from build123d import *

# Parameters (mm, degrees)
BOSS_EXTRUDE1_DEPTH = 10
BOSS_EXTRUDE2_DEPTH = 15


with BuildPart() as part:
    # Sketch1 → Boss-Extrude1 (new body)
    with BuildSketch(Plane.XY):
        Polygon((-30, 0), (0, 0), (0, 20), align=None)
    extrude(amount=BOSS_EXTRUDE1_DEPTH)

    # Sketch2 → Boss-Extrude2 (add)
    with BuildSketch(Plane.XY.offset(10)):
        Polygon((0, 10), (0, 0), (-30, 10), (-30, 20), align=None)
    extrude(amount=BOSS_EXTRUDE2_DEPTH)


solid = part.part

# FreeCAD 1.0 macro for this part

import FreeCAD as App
import Part
import Sketcher

V = App.Vector
Q = App.Units.Quantity


def add_polygon(sketch, points):
    """Adds a closed chain of lines whose ends are joined by coincident constraints."""
    first, n = sketch.GeometryCount, len(points)
    for a, b in zip(points, points[1:] + points[:1]):
        sketch.addGeometry(Part.LineSegment(App.Vector(*a, 0), App.Vector(*b, 0)), False)
    for i in range(n):
        sketch.addConstraint(Sketcher.Constraint("Coincident", first + i, 2, first + (i + 1) % n, 1))

doc = App.newDocument("Part")
body = doc.addObject("PartDesign::Body", "Body")

sketch1 = body.newObject("Sketcher::SketchObject", "Sketch")
sketch1.AttachmentSupport = (doc.getObject("XY_Plane"), [""])
sketch1.MapMode = "FlatFace"
add_polygon(sketch1, [(-30, 0), (0, 0), (0, 20)])
sketch1.addConstraint([
    Sketcher.Constraint("Horizontal", 0),
    Sketcher.Constraint("Vertical", 1),
    Sketcher.Constraint("Coincident", 0, 2, -1, 1),
    Sketcher.Constraint("DistanceX", 0, 1, 0, 2, Q("30 mm")),
    Sketcher.Constraint("DistanceY", 1, 1, 1, 2, Q("20 mm")),
])
pad1 = body.newObject("PartDesign::Pad", "Pad")
pad1.Profile = sketch1
pad1.Length = 10

sketch2 = body.newObject("Sketcher::SketchObject", "Sketch001")
sketch2.AttachmentSupport = (doc.getObject("XY_Plane"), [""])
sketch2.MapMode = "FlatFace"
sketch2.AttachmentOffset = App.Placement(V(0, 0, 10), App.Rotation())
add_polygon(sketch2, [(0, 0), (0, 10), (-30, 20), (-30, 10)])
sketch2.addConstraint([
    Sketcher.Constraint("Vertical", 0),
    Sketcher.Constraint("Vertical", 2),
    Sketcher.Constraint("Coincident", 3, 2, -1, 1),
    Sketcher.Constraint("Parallel", 1, 3),
    Sketcher.Constraint("Horizontal", 0, 2, 2, 2),
    Sketcher.Constraint("DistanceY", 0, 1, 0, 2, Q("10 mm")),
    Sketcher.Constraint("DistanceX", 1, 2, -1, 1, Q("30 mm")),
])
pad2 = body.newObject("PartDesign::Pad", "Pad001")
pad2.Profile = sketch2
pad2.Length = 15

doc.recompute()
